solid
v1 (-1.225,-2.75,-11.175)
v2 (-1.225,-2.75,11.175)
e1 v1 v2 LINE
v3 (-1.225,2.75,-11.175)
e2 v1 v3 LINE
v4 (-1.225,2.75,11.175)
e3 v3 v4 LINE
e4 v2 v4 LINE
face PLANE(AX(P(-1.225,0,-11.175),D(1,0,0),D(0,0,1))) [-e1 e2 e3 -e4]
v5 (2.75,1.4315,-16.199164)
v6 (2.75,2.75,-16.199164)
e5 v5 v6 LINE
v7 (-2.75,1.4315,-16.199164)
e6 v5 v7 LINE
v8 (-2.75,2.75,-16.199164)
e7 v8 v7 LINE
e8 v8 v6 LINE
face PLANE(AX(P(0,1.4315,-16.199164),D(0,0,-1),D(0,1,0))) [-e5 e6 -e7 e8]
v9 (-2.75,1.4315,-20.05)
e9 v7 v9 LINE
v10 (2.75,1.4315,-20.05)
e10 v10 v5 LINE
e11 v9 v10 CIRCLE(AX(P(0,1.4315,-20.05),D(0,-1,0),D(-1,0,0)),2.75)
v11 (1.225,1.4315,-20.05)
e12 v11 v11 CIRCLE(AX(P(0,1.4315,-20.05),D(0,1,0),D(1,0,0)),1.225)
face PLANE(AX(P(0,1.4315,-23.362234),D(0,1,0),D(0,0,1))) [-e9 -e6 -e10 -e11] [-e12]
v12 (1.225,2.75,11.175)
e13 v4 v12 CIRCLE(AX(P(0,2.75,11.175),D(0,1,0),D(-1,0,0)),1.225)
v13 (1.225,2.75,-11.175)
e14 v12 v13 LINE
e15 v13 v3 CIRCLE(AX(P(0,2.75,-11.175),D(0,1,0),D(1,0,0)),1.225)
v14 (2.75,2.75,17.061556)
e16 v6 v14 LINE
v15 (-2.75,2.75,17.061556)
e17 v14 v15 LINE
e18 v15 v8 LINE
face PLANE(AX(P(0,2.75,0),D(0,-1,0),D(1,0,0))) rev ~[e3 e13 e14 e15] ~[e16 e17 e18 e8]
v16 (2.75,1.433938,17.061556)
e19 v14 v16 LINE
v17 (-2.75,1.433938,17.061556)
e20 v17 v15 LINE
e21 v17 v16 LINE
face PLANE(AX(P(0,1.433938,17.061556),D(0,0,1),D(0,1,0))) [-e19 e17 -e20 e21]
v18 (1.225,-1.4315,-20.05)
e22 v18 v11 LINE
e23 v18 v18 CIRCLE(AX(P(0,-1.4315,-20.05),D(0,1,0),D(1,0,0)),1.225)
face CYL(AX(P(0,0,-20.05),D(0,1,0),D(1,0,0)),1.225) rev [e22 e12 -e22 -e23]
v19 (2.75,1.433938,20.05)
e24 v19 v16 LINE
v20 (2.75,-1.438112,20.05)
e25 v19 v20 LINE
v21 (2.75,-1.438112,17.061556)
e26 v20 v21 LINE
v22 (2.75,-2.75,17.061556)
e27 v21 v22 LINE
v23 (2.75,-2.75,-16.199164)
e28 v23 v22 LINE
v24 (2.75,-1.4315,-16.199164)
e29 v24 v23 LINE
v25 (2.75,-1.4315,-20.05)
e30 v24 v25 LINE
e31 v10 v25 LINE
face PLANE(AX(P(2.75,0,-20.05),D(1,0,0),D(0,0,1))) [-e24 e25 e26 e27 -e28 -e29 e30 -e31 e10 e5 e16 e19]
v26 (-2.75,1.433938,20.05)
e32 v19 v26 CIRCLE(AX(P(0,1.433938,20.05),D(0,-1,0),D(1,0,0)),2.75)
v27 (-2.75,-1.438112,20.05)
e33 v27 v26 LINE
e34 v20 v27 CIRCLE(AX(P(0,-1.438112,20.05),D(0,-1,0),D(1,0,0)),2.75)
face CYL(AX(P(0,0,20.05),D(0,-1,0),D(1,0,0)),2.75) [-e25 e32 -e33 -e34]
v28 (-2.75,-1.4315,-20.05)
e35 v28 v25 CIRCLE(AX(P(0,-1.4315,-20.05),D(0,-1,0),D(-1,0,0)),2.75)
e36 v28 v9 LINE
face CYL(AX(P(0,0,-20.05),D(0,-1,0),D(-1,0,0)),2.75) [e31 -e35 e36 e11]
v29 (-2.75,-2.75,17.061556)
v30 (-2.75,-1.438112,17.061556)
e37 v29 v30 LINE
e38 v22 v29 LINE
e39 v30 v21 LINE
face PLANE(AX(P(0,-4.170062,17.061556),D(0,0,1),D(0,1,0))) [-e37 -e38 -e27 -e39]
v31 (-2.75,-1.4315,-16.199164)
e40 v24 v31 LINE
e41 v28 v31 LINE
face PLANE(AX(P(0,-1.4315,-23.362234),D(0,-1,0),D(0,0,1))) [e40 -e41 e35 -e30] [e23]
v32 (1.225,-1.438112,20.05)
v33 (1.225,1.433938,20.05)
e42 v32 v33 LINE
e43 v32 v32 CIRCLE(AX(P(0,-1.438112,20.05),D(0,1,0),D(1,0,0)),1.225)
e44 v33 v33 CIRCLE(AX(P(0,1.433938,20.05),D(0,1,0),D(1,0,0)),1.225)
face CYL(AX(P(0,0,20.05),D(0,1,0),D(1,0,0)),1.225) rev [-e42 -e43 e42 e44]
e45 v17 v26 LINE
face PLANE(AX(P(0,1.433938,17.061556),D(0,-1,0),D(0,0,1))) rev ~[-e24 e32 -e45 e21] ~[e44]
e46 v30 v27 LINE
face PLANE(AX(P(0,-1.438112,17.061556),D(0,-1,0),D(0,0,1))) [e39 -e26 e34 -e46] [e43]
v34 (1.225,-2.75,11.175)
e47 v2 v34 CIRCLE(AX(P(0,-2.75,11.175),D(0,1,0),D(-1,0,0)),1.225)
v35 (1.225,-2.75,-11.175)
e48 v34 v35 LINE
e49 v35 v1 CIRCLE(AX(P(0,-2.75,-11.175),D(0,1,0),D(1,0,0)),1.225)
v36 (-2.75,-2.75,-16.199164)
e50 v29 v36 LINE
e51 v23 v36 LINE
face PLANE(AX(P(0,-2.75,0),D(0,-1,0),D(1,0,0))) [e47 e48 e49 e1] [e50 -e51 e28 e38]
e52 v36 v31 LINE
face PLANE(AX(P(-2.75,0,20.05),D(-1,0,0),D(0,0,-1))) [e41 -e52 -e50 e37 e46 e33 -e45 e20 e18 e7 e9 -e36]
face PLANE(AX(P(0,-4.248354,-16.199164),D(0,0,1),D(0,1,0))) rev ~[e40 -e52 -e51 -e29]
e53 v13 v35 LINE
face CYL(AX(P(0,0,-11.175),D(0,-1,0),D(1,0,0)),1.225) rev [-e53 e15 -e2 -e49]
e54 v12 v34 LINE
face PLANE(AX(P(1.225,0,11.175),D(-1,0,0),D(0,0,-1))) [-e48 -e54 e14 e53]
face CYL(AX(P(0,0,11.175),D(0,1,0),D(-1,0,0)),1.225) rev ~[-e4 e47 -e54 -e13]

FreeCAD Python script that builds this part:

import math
import FreeCAD as App
import Part
import Sketcher

V = App.Vector

doc = App.newDocument("Part")
body = doc.addObject("PartDesign::Body", "Body")

# Sketch on XZ plane
sketch1 = body.newObject("Sketcher::SketchObject", "Sketch")
sketch1.AttachmentSupport = (doc.getObject("XZ_Plane"), [""])
sketch1.MapMode = "FlatFace"
sketch1.addGeometry([
    Part.ArcOfCircle(Part.Circle(V(0, -20.05, 0), V(0, 0, 1), 2.75), math.radians(180), math.radians(360)),  # 0
    Part.LineSegment(V(2.75, -20.05, 0), V(2.75, 20.05, 0)),  # 1
    Part.ArcOfCircle(Part.Circle(V(0, 20.05, 0), V(0, 0, 1), 2.75), math.radians(0), math.radians(180)),  # 2
    Part.LineSegment(V(-2.75, 20.05, 0), V(-2.75, -20.05, 0)),  # 3
    Part.Circle(V(0, -20.05, 0), V(0, 0, 1), 1.225),  # 4
    Part.ArcOfCircle(Part.Circle(V(0, -11.175, 0), V(0, 0, 1), 1.225), math.radians(180), math.radians(360)),  # 5
    Part.LineSegment(V(-1.225, -11.175, 0), V(-1.225, 11.175, 0)),  # 6
    Part.ArcOfCircle(Part.Circle(V(0, 11.175, 0), V(0, 0, 1), 1.225), math.radians(0), math.radians(180)),  # 7
    Part.LineSegment(V(1.225, 11.175, 0), V(1.225, -11.175, 0)),  # 8
    Part.Circle(V(0, 20.05, 0), V(0, 0, 1), 1.225),  # 9
], False)
sketch1.addConstraint([
    Sketcher.Constraint("Tangent", 0, 2, 1, 1),
    Sketcher.Constraint("Tangent", 1, 2, 2, 1),
    Sketcher.Constraint("Tangent", 2, 2, 3, 1),
    Sketcher.Constraint("Tangent", 3, 2, 0, 1),
    Sketcher.Constraint("Tangent", 5, 1, 6, 1),
    Sketcher.Constraint("Tangent", 6, 2, 7, 2),
    Sketcher.Constraint("Tangent", 7, 1, 8, 1),
    Sketcher.Constraint("Tangent", 8, 2, 5, 2),
    Sketcher.Constraint("Vertical", 1),
    Sketcher.Constraint("Vertical", 3),
    Sketcher.Constraint("Vertical", 6),
    Sketcher.Constraint("Vertical", 8),
    Sketcher.Constraint("Coincident", 4, 3, 0, 3),
    Sketcher.Constraint("Coincident", 9, 3, 2, 3),
    Sketcher.Constraint("Equal", 4, 5),
    Sketcher.Constraint("Equal", 7, 9),
    Sketcher.Constraint("Symmetric", 0, 3, 2, 3, -1, 1),
    Sketcher.Constraint("Symmetric", 5, 3, 7, 3, -1, 1),
    Sketcher.Constraint("Diameter", 4, 2.45),
    Sketcher.Constraint("Radius", 0, 2.75),
    Sketcher.Constraint("DistanceY", 1, 1, 1, 2, 40.1),
    Sketcher.Constraint("DistanceY", 6, 1, 6, 2, 22.35),
])
pad1 = body.newObject("PartDesign::Pad", "Pad")
pad1.Profile = sketch1
pad1.Length = 5.5
pad1.Midplane = True

# Sketch on XZ plane
sketch2 = body.newObject("Sketcher::SketchObject", "Sketch001")
sketch2.AttachmentSupport = (doc.getObject("XZ_Plane"), [""])
sketch2.MapMode = "FlatFace"
sketch2.addGeometry([
    Part.Circle(V(0, 20.05, 0), V(0, 0, 1), 1.225),  # 0
    Part.ArcOfCircle(Part.Circle(V(0, 11.175, 0), V(0, 0, 1), 1.225), math.radians(0), math.radians(180)),  # 1
    Part.LineSegment(V(-1.225, 11.175, 0), V(-1.225, -11.175, 0)),  # 2
    Part.ArcOfCircle(Part.Circle(V(0, -11.175, 0), V(0, 0, 1), 1.225), math.radians(180), math.radians(360)),  # 3
    Part.LineSegment(V(1.225, -11.175, 0), V(1.225, 11.175, 0)),  # 4
    Part.Circle(V(0, -20.05, 0), V(0, 0, 1), 1.225),  # 5
], False)
sketch2.addConstraint([
    Sketcher.Constraint("Tangent", 1, 2, 2, 1),
    Sketcher.Constraint("Tangent", 2, 2, 3, 1),
    Sketcher.Constraint("Tangent", 3, 2, 4, 1),
    Sketcher.Constraint("Tangent", 4, 2, 1, 1),
    Sketcher.Constraint("Vertical", 2),
    Sketcher.Constraint("Vertical", 4),
    Sketcher.Constraint("Equal", 0, 1),
    Sketcher.Constraint("Equal", 3, 5),
    Sketcher.Constraint("Symmetric", 1, 3, 3, 3, -1, 1),
    Sketcher.Constraint("Symmetric", 0, 3, 5, 3, -1, 1),
    Sketcher.Constraint("PointOnObject", 0, 3, -2),
    Sketcher.Constraint("Diameter", 0, 2.45),
    Sketcher.Constraint("DistanceY", 2, 2, 2, 1, 22.35),
    Sketcher.Constraint("DistanceY", 5, 3, 0, 3, 40.1),
])
pocket1 = body.newObject("PartDesign::Pocket", "Pocket")
pocket1.Profile = sketch2
pocket1.Length = 25

# Sketch on YZ plane
sketch3 = body.newObject("Sketcher::SketchObject", "Sketch002")
sketch3.AttachmentSupport = (doc.getObject("YZ_Plane"), [""])
sketch3.MapMode = "FlatFace"
sketch3.addGeometry([
    Part.LineSegment(V(-4.170062, 23.622906, 0), V(-4.170062, 17.061556, 0)),  # 0
    Part.LineSegment(V(-4.170062, 17.061556, 0), V(-1.438112, 17.061556, 0)),  # 1
    Part.LineSegment(V(-1.438112, 17.061556, 0), V(-1.438112, 23.622906, 0)),  # 2
    Part.LineSegment(V(-1.438112, 23.622906, 0), V(-4.170062, 23.622906, 0)),  # 3
    Part.LineSegment(V(1.433938, 23.622906, 0), V(1.433938, 17.061556, 0)),  # 4
    Part.LineSegment(V(1.433938, 17.061556, 0), V(4.025788, 17.061556, 0)),  # 5
    Part.LineSegment(V(4.025788, 17.061556, 0), V(4.025788, 23.622906, 0)),  # 6
    Part.LineSegment(V(4.025788, 23.622906, 0), V(1.433938, 23.622906, 0)),  # 7
    Part.LineSegment(V(-4.248354, -16.199164, 0), V(-4.248354, -23.362234, 0)),  # 8
    Part.LineSegment(V(-4.248354, -23.362234, 0), V(-1.4315, -23.362234, 0)),  # 9
    Part.LineSegment(V(-1.4315, -23.362234, 0), V(-1.4315, -16.199164, 0)),  # 10
    Part.LineSegment(V(-1.4315, -16.199164, 0), V(-4.248354, -16.199164, 0)),  # 11
    Part.LineSegment(V(1.4315, -16.199164, 0), V(1.4315, -23.362234, 0)),  # 12
    Part.LineSegment(V(1.4315, -23.362234, 0), V(4.015875, -23.362234, 0)),  # 13
    Part.LineSegment(V(4.015875, -23.362234, 0), V(4.015875, -16.199164, 0)),  # 14
    Part.LineSegment(V(4.015875, -16.199164, 0), V(1.4315, -16.199164, 0)),  # 15
], False)
sketch3.addConstraint([
    Sketcher.Constraint("Coincident", 0, 2, 1, 1),
    Sketcher.Constraint("Coincident", 1, 2, 2, 1),
    Sketcher.Constraint("Coincident", 2, 2, 3, 1),
    Sketcher.Constraint("Coincident", 3, 2, 0, 1),
    Sketcher.Constraint("Coincident", 4, 2, 5, 1),
    Sketcher.Constraint("Coincident", 5, 2, 6, 1),
    Sketcher.Constraint("Coincident", 6, 2, 7, 1),
    Sketcher.Constraint("Coincident", 7, 2, 4, 1),
    Sketcher.Constraint("Coincident", 8, 2, 9, 1),
    Sketcher.Constraint("Coincident", 9, 2, 10, 1),
    Sketcher.Constraint("Coincident", 10, 2, 11, 1),
    Sketcher.Constraint("Coincident", 11, 2, 8, 1),
    Sketcher.Constraint("Coincident", 12, 2, 13, 1),
    Sketcher.Constraint("Coincident", 13, 2, 14, 1),
    Sketcher.Constraint("Coincident", 14, 2, 15, 1),
    Sketcher.Constraint("Coincident", 15, 2, 12, 1),
    Sketcher.Constraint("Vertical", 0),
    Sketcher.Constraint("Horizontal", 1),
    Sketcher.Constraint("Vertical", 2),
    Sketcher.Constraint("Horizontal", 3),
    Sketcher.Constraint("Vertical", 4),
    Sketcher.Constraint("Horizontal", 5),
    Sketcher.Constraint("Vertical", 6),
    Sketcher.Constraint("Horizontal", 7),
    Sketcher.Constraint("Vertical", 8),
    Sketcher.Constraint("Horizontal", 9),
    Sketcher.Constraint("Vertical", 10),
    Sketcher.Constraint("Horizontal", 11),
    Sketcher.Constraint("Vertical", 12),
    Sketcher.Constraint("Horizontal", 13),
    Sketcher.Constraint("Vertical", 14),
    Sketcher.Constraint("Horizontal", 15),
    Sketcher.Constraint("Symmetric", 9, 2, 12, 2, -2),
    Sketcher.Constraint("Horizontal", 1, 2, 4, 2),
    Sketcher.Constraint("Horizontal", 3, 2, 6, 2),
    Sketcher.Constraint("Horizontal", 11, 2, 14, 2),
    Sketcher.Constraint("DistanceX", 0, 2, 4, 2, 5.604),
    Sketcher.Constraint("DistanceX", 9, 2, 12, 2, 2.863),
    Sketcher.Constraint("DistanceX", 1, 1, 1, 2, 2.73195),
    Sketcher.Constraint("DistanceX", 5, 1, 5, 2, 2.59185),
    Sketcher.Constraint("DistanceY", 0, 2, 0, 1, 6.56135),
    Sketcher.Constraint("DistanceY", 8, 2, 8, 1, 7.163071),
    Sketcher.Constraint("DistanceX", 9, 1, 9, 2, 2.816854),
    Sketcher.Constraint("DistanceX", 13, 1, 13, 2, 2.584375),
    Sketcher.Constraint("DistanceX", 8, 2, 0, 2, 0.078292),
    Sketcher.Constraint("DistanceY", 8, 2, 0, 2, 40.42379),
    Sketcher.Constraint("DistanceY", -1, 1, 0, 2, 17.061556),
])
pocket2 = body.newObject("PartDesign::Pocket", "Pocket001")
pocket2.Profile = sketch3
pocket2.Length = 10
pocket2.Midplane = True

doc.recompute()
